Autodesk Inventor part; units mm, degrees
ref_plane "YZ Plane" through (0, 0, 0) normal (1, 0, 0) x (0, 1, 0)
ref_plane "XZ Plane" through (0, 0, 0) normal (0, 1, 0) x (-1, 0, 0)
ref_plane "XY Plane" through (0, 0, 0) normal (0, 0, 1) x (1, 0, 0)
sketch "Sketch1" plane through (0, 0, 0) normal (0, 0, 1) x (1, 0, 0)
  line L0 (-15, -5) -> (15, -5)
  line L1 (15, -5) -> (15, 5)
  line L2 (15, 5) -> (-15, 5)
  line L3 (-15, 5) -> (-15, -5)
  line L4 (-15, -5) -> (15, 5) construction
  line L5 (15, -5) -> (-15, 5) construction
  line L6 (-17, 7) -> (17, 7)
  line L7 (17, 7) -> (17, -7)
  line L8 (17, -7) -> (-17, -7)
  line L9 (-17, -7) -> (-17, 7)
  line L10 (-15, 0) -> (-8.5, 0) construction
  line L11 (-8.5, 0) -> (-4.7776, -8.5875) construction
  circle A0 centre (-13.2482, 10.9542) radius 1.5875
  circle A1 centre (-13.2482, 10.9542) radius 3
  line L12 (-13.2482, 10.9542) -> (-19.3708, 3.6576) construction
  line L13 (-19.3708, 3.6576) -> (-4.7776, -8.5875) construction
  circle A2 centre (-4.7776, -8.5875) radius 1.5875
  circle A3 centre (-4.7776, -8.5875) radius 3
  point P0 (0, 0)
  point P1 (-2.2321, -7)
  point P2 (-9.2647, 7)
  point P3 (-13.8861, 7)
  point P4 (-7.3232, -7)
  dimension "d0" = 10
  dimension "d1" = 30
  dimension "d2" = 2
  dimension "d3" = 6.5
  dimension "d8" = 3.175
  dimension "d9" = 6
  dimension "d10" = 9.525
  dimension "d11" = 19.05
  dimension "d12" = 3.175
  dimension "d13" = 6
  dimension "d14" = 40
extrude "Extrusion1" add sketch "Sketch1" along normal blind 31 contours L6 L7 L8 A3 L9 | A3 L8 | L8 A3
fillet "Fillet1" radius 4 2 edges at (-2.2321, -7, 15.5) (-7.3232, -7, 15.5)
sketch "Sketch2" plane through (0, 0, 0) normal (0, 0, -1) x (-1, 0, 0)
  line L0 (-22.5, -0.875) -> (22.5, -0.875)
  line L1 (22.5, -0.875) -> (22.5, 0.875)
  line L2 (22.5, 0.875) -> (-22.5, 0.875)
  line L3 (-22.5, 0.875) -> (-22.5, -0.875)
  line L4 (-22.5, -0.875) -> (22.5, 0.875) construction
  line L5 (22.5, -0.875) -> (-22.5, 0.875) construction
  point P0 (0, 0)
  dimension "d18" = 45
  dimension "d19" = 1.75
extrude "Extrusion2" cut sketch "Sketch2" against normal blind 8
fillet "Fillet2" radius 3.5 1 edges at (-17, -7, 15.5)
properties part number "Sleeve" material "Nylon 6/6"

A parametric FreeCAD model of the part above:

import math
import FreeCAD as App
import Part
import Sketcher


def edges_at(feature, points):
    """Names of the edges that pass closest to the given points."""
    edges = feature.Shape.Edges
    near = lambda p: min(range(len(edges)), key=lambda i: edges[i].distToShape(Part.Vertex(*p))[0])
    return sorted({f"Edge{near(p) + 1}" for p in points})


def add_polygon(sketch, points):
    """Adds a closed chain of lines whose ends are joined by coincident constraints."""
    first, n = sketch.GeometryCount, len(points)
    for a, b in zip(points, points[1:] + points[:1]):
        sketch.addGeometry(Part.LineSegment(App.Vector(*a, 0), App.Vector(*b, 0)), False)
    for i in range(n):
        sketch.addConstraint(Sketcher.Constraint("Coincident", first + i, 2, first + (i + 1) % n, 1))

doc = App.newDocument("Part")
body = doc.addObject("PartDesign::Body", "Body")

# Sketch on XY plane
sketch1 = doc.addObject("Sketcher::SketchObject", "Sketch")
body.addObject(sketch1)
sketch1.AttachmentSupport = (doc.XY_Plane, [""])
sketch1.MapMode = "FlatFace"
sketch1.addGeometry(Part.LineSegment(App.Vector(17, 7, 0), App.Vector(-17, 7, 0)), False)  # 0
sketch1.addGeometry(Part.LineSegment(App.Vector(-17, 7, 0), App.Vector(-17, -7, 0)), False)  # 1
sketch1.addGeometry(Part.LineSegment(App.Vector(-17, -7, 0), App.Vector(-7.3, -7, 0)), False)  # 2
sketch1.addGeometry(Part.ArcOfCircle(Part.Circle(App.Vector(-4.8, -8.6, 0), App.Vector(0, 0, 1), 3), math.radians(148), math.radians(392)), False)  # 3
sketch1.addGeometry(Part.LineSegment(App.Vector(-2.2, -7, 0), App.Vector(17, -7, 0)), False)  # 4
sketch1.addGeometry(Part.LineSegment(App.Vector(17, -7, 0), App.Vector(17, 7, 0)), False)  # 5
add_polygon(sketch1, [(15, -5), (-15, -5), (-15, 5), (15, 5)])  # lines 6-9
sketch1.addGeometry(Part.Circle(App.Vector(-4.8, -8.6, 0), App.Vector(0, 0, 1), 1.6), False)  # 10
sketch1.addConstraint(Sketcher.Constraint("Coincident", 0, 2, 1, 1))
sketch1.addConstraint(Sketcher.Constraint("Coincident", 1, 2, 2, 1))
sketch1.addConstraint(Sketcher.Constraint("Coincident", 2, 2, 3, 1))
sketch1.addConstraint(Sketcher.Constraint("Coincident", 3, 2, 4, 1))
sketch1.addConstraint(Sketcher.Constraint("Coincident", 4, 2, 5, 1))
sketch1.addConstraint(Sketcher.Constraint("Coincident", 5, 2, 0, 1))
sketch1.addConstraint(Sketcher.Constraint("Horizontal", 0))
sketch1.addConstraint(Sketcher.Constraint("Vertical", 1))
sketch1.addConstraint(Sketcher.Constraint("Horizontal", 2))
sketch1.addConstraint(Sketcher.Constraint("Horizontal", 4))
sketch1.addConstraint(Sketcher.Constraint("Vertical", 5))
sketch1.addConstraint(Sketcher.Constraint("Horizontal", 6))
sketch1.addConstraint(Sketcher.Constraint("Vertical", 7))
sketch1.addConstraint(Sketcher.Constraint("Horizontal", 8))
sketch1.addConstraint(Sketcher.Constraint("Vertical", 9))
sketch1.addConstraint(Sketcher.Constraint("Coincident", 10, 3, 3, 3))
sketch1.addConstraint(Sketcher.Constraint("Symmetric", 0, 2, 4, 2, -1, 1))
sketch1.addConstraint(Sketcher.Constraint("Symmetric", 6, 2, 8, 2, -1, 1))
sketch1.addConstraint(Sketcher.Constraint("Horizontal", 2, 2, 3, 2))
sketch1.addConstraint(Sketcher.Constraint("Radius", 3, 3.0))
sketch1.addConstraint(Sketcher.Constraint("DistanceX", 6, 2, 6, 1, 30.0))
sketch1.addConstraint(Sketcher.Constraint("DistanceY", 7, 1, 7, 2, 10.0))
sketch1.addConstraint(Sketcher.Constraint("Diameter", 10, 3.175))
sketch1.addConstraint(Sketcher.Constraint("DistanceX", 1, 2, 6, 2, 2.0))
sketch1.addConstraint(Sketcher.Constraint("DistanceY", 1, 2, 6, 2, 2.0))
sketch1.addConstraint(Sketcher.Constraint("DistanceX", 4, 1, 4, 2, 19.232))
sketch1.addConstraint(Sketcher.Constraint("DistanceX", 2, 1, 2, 2, 9.6768))
pad1 = doc.addObject("PartDesign::Pad", "Pad")
body.addObject(pad1)
pad1.Profile = sketch1
pad1.Length = 31
doc.recompute()

fillet = doc.addObject("PartDesign::Fillet", "Fillet")
body.addObject(fillet)
fillet.Base = (pad1, edges_at(pad1, [(-2.232, -7, 15.5), (-7.323, -7, 15.5)]))
fillet.Radius = 4

# Sketch on XY plane
sketch2 = doc.addObject("Sketcher::SketchObject", "Sketch001")
body.addObject(sketch2)
sketch2.AttachmentSupport = (doc.XY_Plane, [""])
sketch2.MapMode = "FlatFace"
add_polygon(sketch2, [(22.5, 0.9), (22.5, -0.9), (-22.5, -0.9), (-22.5, 0.9)])  # lines 0-3
sketch2.addConstraint(Sketcher.Constraint("Vertical", 0))
sketch2.addConstraint(Sketcher.Constraint("Horizontal", 1))
sketch2.addConstraint(Sketcher.Constraint("Vertical", 2))
sketch2.addConstraint(Sketcher.Constraint("Horizontal", 3))
sketch2.addConstraint(Sketcher.Constraint("Symmetric", 0, 2, 2, 2, -1, 1))
sketch2.addConstraint(Sketcher.Constraint("DistanceX", 1, 2, 1, 1, 45.0))
sketch2.addConstraint(Sketcher.Constraint("DistanceY", 0, 2, 0, 1, 1.75))
pocket1 = doc.addObject("PartDesign::Pocket", "Pocket")
body.addObject(pocket1)
pocket1.Profile = sketch2
pocket1.Length = 8
pocket1.Reversed = True
doc.recompute()

fillet2 = doc.addObject("PartDesign::Fillet", "Fillet001")
body.addObject(fillet2)
fillet2.Base = (pocket1, edges_at(pocket1, [(-17, -7, 15.5)]))
fillet2.Radius = 3.5

doc.recompute()
